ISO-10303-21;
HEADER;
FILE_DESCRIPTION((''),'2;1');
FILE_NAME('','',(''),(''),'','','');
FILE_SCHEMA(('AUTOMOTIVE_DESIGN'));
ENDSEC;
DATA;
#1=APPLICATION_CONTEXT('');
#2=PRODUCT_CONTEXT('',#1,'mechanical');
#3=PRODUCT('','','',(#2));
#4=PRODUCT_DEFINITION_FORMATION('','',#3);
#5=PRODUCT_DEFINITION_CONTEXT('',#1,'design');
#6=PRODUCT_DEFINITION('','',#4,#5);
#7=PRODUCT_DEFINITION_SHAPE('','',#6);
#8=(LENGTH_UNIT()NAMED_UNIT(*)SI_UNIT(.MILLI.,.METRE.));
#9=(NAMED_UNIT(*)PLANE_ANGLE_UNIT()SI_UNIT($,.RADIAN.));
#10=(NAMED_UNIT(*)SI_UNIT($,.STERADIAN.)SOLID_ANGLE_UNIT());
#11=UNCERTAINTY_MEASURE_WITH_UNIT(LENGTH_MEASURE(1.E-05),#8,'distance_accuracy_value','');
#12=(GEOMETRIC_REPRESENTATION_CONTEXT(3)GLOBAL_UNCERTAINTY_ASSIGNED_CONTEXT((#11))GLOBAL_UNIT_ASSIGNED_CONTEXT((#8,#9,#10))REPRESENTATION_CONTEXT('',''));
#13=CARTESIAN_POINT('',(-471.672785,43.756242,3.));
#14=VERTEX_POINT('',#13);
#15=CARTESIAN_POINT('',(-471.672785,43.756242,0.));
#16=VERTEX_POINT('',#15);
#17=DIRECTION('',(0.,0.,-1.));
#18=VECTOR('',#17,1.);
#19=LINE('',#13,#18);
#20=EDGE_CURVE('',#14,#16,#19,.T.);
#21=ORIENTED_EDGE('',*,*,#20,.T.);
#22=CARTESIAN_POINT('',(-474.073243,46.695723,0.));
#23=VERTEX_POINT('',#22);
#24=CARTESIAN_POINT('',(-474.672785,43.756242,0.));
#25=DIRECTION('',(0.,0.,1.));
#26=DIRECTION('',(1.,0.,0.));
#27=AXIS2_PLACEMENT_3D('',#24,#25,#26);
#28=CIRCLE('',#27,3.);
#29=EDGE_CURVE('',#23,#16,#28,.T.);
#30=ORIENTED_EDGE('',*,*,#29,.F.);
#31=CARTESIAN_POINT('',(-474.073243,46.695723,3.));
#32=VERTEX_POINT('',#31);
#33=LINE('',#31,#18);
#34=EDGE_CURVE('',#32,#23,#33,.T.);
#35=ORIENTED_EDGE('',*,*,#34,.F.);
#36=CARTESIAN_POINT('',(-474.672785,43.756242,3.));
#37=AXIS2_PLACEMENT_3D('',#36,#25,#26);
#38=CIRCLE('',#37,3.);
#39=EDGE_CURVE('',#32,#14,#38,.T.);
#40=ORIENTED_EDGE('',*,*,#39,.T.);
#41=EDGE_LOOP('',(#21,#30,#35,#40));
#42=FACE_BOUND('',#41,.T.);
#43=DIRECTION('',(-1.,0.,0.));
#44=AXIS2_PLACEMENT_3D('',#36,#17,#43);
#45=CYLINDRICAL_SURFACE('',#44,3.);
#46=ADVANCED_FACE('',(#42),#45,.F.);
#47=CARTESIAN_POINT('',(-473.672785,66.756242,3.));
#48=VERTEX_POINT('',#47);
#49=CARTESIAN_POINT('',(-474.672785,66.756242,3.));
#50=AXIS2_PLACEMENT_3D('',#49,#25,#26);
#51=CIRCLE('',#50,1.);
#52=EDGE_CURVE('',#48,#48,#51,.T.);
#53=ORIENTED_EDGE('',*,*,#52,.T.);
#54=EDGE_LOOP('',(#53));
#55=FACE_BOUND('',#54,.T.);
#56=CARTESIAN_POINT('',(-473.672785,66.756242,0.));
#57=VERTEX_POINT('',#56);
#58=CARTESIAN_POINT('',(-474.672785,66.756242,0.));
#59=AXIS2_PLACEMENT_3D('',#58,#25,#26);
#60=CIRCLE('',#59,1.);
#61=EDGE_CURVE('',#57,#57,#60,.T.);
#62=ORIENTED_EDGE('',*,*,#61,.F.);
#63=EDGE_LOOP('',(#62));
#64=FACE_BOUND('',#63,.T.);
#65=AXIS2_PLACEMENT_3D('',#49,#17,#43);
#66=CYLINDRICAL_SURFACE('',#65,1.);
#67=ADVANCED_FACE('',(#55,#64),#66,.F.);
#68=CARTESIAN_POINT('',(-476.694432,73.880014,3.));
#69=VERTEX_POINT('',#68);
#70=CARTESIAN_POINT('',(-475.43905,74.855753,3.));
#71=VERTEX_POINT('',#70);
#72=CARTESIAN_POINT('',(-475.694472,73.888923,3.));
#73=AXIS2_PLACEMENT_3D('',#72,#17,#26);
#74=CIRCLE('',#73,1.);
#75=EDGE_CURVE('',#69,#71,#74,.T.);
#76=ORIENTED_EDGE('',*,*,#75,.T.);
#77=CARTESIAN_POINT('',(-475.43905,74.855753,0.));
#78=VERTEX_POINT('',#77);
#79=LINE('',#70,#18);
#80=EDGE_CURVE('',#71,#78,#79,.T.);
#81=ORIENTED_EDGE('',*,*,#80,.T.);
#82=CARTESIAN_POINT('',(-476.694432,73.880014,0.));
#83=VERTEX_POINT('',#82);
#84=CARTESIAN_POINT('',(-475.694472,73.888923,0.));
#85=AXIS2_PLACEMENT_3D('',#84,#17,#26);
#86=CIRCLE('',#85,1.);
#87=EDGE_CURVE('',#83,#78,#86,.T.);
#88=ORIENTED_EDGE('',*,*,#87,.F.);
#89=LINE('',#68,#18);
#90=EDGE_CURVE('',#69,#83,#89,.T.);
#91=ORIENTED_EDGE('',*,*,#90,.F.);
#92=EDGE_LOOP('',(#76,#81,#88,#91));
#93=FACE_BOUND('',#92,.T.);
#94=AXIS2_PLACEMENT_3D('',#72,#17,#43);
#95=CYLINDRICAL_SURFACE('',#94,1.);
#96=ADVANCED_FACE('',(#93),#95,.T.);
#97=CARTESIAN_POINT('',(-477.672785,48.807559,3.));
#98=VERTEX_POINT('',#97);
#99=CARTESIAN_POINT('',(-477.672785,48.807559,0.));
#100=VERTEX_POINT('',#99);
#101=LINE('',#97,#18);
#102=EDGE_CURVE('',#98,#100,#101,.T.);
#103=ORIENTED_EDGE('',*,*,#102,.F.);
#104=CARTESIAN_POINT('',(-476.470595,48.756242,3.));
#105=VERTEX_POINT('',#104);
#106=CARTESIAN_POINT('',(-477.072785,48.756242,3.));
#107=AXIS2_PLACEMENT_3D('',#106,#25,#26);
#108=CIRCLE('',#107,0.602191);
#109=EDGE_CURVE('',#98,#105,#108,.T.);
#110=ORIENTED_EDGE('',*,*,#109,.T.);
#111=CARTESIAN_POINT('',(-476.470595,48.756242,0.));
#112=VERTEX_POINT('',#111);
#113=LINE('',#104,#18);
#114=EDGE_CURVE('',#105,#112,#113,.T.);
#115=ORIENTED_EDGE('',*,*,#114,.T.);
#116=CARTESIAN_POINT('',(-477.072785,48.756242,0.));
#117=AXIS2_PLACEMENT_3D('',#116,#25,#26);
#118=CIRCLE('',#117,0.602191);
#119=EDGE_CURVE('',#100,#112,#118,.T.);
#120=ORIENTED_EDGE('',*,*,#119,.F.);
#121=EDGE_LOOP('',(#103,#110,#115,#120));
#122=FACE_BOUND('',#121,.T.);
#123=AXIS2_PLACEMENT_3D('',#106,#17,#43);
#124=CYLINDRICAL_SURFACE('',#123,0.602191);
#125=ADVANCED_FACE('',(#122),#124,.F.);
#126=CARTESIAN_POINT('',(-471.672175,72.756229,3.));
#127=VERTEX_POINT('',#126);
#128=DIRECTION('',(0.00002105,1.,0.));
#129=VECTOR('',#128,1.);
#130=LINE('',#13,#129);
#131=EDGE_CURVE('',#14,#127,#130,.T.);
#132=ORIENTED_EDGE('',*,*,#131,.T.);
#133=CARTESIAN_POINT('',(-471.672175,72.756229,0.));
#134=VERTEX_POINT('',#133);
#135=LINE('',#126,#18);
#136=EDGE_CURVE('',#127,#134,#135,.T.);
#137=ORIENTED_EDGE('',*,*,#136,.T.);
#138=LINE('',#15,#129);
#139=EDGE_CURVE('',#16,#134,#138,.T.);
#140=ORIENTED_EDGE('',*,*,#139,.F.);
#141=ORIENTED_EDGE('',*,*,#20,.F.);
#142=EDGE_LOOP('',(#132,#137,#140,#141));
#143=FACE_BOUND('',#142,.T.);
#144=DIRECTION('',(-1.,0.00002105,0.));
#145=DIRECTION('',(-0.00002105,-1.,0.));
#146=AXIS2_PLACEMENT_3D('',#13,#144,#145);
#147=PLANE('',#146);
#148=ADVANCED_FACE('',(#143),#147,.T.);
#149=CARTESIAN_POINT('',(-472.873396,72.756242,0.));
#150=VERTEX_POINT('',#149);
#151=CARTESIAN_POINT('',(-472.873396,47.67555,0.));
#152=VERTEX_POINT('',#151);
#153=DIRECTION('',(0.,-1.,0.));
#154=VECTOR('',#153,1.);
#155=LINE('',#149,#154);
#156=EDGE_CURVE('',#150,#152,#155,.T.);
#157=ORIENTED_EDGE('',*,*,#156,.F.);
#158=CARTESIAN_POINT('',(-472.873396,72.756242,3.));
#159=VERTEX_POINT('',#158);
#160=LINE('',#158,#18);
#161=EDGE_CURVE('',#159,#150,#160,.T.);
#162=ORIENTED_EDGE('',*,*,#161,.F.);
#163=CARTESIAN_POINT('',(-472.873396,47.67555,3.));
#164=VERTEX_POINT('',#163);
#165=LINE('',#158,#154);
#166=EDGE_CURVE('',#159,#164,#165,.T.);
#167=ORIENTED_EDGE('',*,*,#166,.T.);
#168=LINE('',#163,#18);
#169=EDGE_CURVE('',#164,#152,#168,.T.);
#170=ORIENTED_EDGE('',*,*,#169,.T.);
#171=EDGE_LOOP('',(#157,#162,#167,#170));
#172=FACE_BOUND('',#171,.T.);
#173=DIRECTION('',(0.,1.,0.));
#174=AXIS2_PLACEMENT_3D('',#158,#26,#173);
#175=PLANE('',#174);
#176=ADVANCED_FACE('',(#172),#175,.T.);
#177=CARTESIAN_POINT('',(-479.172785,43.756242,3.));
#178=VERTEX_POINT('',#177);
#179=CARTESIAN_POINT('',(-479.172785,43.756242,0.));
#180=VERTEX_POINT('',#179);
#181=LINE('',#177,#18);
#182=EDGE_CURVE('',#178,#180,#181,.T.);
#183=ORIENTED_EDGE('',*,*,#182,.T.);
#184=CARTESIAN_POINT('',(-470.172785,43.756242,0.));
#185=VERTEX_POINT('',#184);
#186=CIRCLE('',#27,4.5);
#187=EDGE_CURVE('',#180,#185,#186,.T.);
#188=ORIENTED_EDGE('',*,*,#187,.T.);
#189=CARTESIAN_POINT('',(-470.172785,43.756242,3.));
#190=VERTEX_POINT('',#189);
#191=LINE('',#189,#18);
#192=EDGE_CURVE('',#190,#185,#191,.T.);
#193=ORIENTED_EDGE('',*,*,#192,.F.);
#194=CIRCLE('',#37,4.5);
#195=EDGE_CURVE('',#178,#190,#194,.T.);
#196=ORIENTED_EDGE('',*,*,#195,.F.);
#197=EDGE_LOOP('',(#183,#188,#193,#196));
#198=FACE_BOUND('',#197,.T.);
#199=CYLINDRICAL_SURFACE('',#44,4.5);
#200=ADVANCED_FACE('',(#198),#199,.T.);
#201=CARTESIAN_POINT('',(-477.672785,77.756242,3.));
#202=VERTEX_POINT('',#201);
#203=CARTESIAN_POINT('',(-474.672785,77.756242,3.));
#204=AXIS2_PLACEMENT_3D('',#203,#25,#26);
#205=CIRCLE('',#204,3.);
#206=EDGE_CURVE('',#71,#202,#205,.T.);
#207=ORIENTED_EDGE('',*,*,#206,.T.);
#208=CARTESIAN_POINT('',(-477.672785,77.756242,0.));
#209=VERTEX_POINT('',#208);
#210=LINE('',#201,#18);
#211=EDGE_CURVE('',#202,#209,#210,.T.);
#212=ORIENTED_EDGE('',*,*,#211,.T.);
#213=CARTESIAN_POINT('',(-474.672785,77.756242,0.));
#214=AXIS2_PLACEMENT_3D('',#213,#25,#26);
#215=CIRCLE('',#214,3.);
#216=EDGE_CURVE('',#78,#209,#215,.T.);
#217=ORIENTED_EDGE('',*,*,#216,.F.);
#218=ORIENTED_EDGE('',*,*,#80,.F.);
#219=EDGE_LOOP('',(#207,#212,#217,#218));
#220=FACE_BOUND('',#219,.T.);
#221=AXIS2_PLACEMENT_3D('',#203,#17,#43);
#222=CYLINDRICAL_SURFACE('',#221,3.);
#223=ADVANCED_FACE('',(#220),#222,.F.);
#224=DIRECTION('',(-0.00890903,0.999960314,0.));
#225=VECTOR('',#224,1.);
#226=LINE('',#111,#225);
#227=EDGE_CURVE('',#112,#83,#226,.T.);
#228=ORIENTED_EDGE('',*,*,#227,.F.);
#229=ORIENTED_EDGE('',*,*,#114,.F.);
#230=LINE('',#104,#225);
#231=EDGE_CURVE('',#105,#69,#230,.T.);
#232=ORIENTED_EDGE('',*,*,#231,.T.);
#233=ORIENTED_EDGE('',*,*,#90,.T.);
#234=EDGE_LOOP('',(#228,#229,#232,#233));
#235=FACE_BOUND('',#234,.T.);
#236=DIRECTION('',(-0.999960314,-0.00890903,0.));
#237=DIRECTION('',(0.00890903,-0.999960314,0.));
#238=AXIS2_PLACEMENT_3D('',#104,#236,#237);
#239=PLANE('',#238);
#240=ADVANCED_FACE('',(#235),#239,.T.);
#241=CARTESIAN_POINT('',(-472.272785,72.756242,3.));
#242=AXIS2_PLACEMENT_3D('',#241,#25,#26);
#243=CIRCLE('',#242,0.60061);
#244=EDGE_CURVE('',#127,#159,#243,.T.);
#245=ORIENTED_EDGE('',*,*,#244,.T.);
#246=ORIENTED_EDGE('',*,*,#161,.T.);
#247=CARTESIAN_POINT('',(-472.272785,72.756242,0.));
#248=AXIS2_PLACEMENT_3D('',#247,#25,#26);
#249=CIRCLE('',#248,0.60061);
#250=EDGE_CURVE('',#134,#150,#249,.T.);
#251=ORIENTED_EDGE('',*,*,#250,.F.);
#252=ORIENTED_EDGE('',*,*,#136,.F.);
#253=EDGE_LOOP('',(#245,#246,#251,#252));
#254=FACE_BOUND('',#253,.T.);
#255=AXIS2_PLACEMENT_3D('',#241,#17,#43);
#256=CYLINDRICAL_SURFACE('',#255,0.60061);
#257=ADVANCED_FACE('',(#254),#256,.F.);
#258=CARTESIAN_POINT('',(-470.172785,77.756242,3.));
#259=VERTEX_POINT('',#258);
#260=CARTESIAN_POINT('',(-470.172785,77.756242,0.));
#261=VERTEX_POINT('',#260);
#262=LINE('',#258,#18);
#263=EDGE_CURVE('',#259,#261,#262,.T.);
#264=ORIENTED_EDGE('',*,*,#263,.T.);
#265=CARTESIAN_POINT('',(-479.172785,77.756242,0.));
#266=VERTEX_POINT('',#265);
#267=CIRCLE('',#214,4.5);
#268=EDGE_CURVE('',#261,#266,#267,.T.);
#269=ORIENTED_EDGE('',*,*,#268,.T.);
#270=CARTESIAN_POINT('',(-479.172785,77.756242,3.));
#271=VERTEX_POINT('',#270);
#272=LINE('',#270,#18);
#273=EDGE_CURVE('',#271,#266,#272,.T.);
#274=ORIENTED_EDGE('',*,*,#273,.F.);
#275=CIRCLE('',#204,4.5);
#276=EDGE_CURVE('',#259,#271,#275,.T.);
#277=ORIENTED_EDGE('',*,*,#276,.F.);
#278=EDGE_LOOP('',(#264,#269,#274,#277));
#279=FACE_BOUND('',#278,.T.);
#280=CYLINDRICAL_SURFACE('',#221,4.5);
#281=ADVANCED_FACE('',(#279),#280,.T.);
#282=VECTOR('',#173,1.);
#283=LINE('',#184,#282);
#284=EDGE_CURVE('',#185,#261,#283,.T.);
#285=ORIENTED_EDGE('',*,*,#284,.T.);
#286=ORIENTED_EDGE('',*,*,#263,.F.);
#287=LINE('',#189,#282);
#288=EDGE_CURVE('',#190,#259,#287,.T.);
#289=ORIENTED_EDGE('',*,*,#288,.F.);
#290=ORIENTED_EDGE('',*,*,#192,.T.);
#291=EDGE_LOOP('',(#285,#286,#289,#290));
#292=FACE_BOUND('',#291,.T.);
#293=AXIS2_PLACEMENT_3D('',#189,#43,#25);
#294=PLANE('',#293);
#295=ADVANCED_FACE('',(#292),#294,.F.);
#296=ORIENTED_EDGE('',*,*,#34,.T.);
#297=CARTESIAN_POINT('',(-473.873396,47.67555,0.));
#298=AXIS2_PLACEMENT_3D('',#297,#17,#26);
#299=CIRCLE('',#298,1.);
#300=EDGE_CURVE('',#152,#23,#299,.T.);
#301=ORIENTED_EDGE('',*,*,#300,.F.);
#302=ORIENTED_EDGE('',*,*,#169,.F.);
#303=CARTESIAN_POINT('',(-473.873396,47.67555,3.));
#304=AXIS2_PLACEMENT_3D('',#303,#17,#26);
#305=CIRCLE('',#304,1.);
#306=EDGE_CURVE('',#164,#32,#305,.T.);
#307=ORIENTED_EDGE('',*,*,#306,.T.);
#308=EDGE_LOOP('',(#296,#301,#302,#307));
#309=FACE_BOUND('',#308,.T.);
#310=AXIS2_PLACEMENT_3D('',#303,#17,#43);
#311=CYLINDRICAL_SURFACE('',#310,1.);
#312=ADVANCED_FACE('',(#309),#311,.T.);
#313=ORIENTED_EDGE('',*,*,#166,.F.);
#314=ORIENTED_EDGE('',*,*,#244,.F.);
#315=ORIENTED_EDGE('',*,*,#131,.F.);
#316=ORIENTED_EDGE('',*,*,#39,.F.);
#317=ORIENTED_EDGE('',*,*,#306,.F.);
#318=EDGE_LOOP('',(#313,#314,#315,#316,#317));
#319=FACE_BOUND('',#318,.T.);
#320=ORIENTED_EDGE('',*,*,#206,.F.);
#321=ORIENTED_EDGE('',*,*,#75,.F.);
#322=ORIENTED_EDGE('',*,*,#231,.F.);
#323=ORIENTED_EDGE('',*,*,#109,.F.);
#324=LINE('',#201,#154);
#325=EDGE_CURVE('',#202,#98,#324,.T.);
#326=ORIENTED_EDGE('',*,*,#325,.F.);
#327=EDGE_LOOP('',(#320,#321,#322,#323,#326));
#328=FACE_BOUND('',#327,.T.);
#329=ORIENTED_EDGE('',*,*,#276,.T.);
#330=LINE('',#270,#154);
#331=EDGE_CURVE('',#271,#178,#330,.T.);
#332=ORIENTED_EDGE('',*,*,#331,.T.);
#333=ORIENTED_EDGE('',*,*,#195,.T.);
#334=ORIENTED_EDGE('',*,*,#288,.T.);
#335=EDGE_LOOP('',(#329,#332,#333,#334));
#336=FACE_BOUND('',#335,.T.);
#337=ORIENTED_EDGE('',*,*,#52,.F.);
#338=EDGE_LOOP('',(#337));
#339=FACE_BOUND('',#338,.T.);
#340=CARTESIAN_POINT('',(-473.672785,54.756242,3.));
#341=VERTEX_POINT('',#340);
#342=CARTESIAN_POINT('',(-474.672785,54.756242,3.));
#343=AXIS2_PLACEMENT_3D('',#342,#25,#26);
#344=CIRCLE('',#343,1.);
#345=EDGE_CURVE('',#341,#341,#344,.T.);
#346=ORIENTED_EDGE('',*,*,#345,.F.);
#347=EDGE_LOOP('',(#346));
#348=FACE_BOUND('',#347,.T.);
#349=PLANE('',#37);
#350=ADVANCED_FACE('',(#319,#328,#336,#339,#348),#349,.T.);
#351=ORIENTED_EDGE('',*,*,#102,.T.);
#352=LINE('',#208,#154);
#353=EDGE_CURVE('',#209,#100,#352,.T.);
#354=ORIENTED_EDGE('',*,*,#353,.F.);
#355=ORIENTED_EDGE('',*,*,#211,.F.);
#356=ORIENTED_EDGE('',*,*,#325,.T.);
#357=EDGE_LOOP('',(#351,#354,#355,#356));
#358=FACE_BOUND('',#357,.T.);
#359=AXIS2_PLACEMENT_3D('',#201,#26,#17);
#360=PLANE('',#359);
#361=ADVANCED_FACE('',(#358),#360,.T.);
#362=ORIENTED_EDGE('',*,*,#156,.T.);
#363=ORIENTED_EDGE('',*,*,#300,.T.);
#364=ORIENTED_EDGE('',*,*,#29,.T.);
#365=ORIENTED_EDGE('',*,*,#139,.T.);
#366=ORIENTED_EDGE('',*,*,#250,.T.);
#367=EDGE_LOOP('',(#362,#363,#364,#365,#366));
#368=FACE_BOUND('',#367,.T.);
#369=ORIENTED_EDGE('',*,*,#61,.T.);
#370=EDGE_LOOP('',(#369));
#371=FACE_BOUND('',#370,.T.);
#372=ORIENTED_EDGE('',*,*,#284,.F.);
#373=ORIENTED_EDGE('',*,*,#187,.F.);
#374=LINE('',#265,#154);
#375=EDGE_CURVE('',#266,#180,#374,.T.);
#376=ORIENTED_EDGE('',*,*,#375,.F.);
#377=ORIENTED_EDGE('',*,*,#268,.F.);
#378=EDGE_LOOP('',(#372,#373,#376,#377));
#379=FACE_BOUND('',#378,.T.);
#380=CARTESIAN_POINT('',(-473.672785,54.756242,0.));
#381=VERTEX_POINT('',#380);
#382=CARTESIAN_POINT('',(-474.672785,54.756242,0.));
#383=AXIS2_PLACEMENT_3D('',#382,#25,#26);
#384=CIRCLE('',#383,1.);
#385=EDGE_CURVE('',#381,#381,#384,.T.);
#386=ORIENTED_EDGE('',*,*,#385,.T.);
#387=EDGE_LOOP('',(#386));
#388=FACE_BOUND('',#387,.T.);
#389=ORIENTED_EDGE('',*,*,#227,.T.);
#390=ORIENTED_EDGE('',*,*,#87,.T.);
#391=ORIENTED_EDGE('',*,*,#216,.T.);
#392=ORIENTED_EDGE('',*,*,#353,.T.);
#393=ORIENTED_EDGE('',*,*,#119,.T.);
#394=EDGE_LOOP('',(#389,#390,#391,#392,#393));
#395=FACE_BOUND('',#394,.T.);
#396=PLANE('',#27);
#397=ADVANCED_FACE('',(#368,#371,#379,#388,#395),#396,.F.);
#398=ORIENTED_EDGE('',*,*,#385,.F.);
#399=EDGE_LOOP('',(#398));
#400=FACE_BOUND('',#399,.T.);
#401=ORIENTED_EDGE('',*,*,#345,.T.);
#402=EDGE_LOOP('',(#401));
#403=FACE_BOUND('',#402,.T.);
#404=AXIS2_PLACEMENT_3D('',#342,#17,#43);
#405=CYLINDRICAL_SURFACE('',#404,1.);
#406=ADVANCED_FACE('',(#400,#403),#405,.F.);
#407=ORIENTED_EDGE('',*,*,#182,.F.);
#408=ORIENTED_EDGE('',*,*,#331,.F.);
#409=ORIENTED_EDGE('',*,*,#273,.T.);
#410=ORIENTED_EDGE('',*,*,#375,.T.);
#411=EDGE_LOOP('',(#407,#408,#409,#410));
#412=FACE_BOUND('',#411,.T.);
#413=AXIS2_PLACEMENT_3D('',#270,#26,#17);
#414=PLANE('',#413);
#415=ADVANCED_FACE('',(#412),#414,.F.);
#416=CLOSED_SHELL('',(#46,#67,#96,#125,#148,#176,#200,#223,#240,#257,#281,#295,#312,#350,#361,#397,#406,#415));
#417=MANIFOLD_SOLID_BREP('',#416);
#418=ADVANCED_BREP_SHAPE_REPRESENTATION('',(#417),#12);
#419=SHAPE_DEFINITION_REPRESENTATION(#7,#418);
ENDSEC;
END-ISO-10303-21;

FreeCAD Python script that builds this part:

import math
import FreeCAD as App
import Part
import Sketcher
from FreeCAD import Vector
Q = App.Units.Quantity

doc = App.newDocument("Part")
body = doc.addObject("PartDesign::Body", "Body")

sketch1 = doc.addObject("Sketcher::SketchObject", "Sketch")
body.addObject(sketch1)
sketch1.AttachmentSupport = (doc.XY_Plane, [""])
sketch1.MapMode = "FlatFace"
sketch1.addGeometry([
    Part.LineSegment(Vector(-470.2, 43.8, 0), Vector(-470.2, 77.8, 0)),
    Part.ArcOfCircle(Part.Circle(Vector(-474.7, 77.8, 0), Vector(0, 0, 1), 4.5), math.radians(0), math.radians(180)),
    Part.LineSegment(Vector(-479.2, 77.8, 0), Vector(-479.2, 43.8, 0)),
    Part.ArcOfCircle(Part.Circle(Vector(-474.7, 43.8, 0), Vector(0, 0, 1), 4.5), math.radians(180), math.radians(360)),
    Part.Circle(Vector(-474.7, 54.8, 0), Vector(0, 0, 1), 1),
    Part.LineSegment(Vector(-472.9, 47.7, 0), Vector(-472.9, 72.8, 0)),
    Part.ArcOfCircle(Part.Circle(Vector(-472.3, 72.8, 0), Vector(0, 0, 1), 0.6), math.radians(0), math.radians(180)),
    Part.LineSegment(Vector(-471.7, 72.8, 0), Vector(-471.7, 43.8, 0)),
    Part.ArcOfCircle(Part.Circle(Vector(-474.7, 43.8, 0), Vector(0, 0, 1), 3), math.radians(78), math.radians(360)),
    Part.ArcOfCircle(Part.Circle(Vector(-473.9, 47.7, 0), Vector(0, 0, 1), 1), math.radians(-102), math.radians(0)),
    Part.LineSegment(Vector(-476.7, 73.9, 0), Vector(-476.5, 48.8, 0)),
    Part.ArcOfCircle(Part.Circle(Vector(-477.1, 48.8, 0), Vector(0, 0, 1), 0.6), math.radians(175), math.radians(360)),
    Part.LineSegment(Vector(-477.7, 48.8, 0), Vector(-477.7, 77.8, 0)),
    Part.ArcOfCircle(Part.Circle(Vector(-474.7, 77.8, 0), Vector(0, 0, 1), 3), math.radians(-105), math.radians(180)),
    Part.ArcOfCircle(Part.Circle(Vector(-475.7, 73.9, 0), Vector(0, 0, 1), 1), math.radians(75), math.radians(181)),
    Part.Circle(Vector(-474.7, 66.8, 0), Vector(0, 0, 1), 1),
], False)
sketch1.addConstraint([
    Sketcher.Constraint("Tangent", 0, 2, 1, 1),
    Sketcher.Constraint("Tangent", 1, 2, 2, 1),
    Sketcher.Constraint("Tangent", 2, 2, 3, 1),
    Sketcher.Constraint("Tangent", 3, 2, 0, 1),
    Sketcher.Constraint("Tangent", 5, 2, 6, 2),
    Sketcher.Constraint("Tangent", 6, 1, 7, 1),
    Sketcher.Constraint("Coincident", 7, 2, 8, 2),
    Sketcher.Constraint("Tangent", 8, 1, 9, 1),
    Sketcher.Constraint("Tangent", 9, 2, 5, 1),
    Sketcher.Constraint("Coincident", 10, 2, 11, 2),
    Sketcher.Constraint("Coincident", 11, 1, 12, 1),
    Sketcher.Constraint("Tangent", 12, 2, 13, 2),
    Sketcher.Constraint("Tangent", 13, 1, 14, 1),
    Sketcher.Constraint("Tangent", 14, 2, 10, 1),
    Sketcher.Constraint("Vertical", 0),
    Sketcher.Constraint("Vertical", 2),
    Sketcher.Constraint("Vertical", 5),
    Sketcher.Constraint("Vertical", 12),
    Sketcher.Constraint("Coincident", 8, 3, 3, 3),
    Sketcher.Constraint("Coincident", 13, 3, 1, 3),
    Sketcher.Constraint("Equal", 4, 9),
    Sketcher.Constraint("Equal", 8, 13),
    Sketcher.Constraint("Equal", 9, 14),
    Sketcher.Constraint("Equal", 14, 15),
    Sketcher.Constraint("Horizontal", 3, 2, 7, 2),
    Sketcher.Constraint("Horizontal", 11, 3, 10, 2),
    Sketcher.Constraint("Vertical", 3, 3, 4, 3),
    Sketcher.Constraint("Vertical", 13, 3, 15, 3),
    Sketcher.Constraint("Diameter", 4, Q("2 mm")),
    Sketcher.Constraint("Radius", 8, Q("3 mm")),
    Sketcher.Constraint("Radius", 1, Q("4.5 mm")),
    Sketcher.Constraint("DistanceY", 0, 1, 0, 2, Q("34 mm")),
    Sketcher.Constraint("DistanceY", 3, 3, 4, 3, Q("11 mm")),
    Sketcher.Constraint("DistanceY", 6, 3, 1, 3, Q("5 mm")),
    Sketcher.Constraint("DistanceY", 3, 3, 11, 3, Q("5 mm")),
    Sketcher.Constraint("DistanceY", 15, 3, 6, 3, Q("6 mm")),
    Sketcher.Constraint("DistanceX", 1, 3, 6, 3, Q("2.4 mm")),
    Sketcher.Constraint("DistanceX", 11, 3, 3, 3, Q("2.4 mm")),
    Sketcher.Constraint("Radius", 6, Q("0.60061 mm")),
    Sketcher.Constraint("Radius", 11, Q("0.602191 mm")),
    Sketcher.Constraint("Distance", 10, Q("25.124769 mm")),
    Sketcher.Constraint("DistanceY", -1, 1, 1, 3, Q("77.756242 mm")),
    Sketcher.Constraint("DistanceX", 14, 3, -1, 1, Q("475.694472 mm")),
])
pad1 = doc.addObject("PartDesign::Pad", "Pad")
body.addObject(pad1)
pad1.Profile = sketch1
pad1.Length = 3

doc.recompute()
